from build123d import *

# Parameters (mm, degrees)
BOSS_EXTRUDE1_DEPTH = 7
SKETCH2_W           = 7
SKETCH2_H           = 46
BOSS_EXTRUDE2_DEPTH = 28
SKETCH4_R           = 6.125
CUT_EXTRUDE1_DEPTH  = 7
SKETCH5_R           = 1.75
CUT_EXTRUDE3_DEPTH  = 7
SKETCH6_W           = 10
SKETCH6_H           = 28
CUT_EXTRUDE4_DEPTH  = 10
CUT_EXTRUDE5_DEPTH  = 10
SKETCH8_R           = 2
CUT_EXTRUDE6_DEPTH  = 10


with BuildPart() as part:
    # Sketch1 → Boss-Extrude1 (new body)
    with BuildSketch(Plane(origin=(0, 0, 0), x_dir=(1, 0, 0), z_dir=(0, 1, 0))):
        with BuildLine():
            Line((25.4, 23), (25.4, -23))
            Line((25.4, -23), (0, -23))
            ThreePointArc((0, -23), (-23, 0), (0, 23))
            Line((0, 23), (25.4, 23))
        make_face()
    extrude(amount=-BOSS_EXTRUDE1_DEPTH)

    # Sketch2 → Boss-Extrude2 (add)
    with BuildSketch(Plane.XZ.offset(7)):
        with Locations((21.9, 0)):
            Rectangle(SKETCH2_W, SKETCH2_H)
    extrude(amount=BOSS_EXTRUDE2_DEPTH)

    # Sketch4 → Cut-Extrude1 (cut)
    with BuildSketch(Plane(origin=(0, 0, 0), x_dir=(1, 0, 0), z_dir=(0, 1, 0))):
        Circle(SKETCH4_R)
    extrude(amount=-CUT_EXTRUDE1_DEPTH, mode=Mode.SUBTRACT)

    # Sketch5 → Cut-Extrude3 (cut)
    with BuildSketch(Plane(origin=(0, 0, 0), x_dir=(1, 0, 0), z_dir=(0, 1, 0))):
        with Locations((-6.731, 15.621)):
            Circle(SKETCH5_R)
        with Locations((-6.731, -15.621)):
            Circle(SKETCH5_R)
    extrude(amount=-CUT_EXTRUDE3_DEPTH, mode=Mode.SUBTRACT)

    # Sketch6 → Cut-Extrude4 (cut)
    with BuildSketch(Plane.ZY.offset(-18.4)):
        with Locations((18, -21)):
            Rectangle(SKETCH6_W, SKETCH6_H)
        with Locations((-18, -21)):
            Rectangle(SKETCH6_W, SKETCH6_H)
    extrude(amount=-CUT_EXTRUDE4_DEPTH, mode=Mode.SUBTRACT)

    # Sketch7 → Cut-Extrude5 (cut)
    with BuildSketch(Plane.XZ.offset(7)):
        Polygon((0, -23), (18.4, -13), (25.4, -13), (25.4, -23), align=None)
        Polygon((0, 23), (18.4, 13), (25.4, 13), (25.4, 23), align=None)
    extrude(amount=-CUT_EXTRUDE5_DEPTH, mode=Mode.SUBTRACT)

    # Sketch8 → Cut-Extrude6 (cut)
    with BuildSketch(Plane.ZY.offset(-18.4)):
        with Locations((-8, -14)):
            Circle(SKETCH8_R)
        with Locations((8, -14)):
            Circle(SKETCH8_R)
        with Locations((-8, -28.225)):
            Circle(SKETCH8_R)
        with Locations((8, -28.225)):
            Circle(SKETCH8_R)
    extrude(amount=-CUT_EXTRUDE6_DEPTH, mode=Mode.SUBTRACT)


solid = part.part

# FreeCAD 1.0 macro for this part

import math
import FreeCAD as App
import Part
import Sketcher

doc = App.newDocument("Part")
params = doc.addObject("Spreadsheet::Sheet", "Params")
for row, (alias, value) in enumerate([
    ("sketch1_radius", "23 mm"),
    ("sketch1_width", "25.4 mm"),
    ("pad1_length", "7 mm"),
    ("sketch2_width", "7 mm"),
    ("sketch2_height", "46 mm"),
    ("pad2_length", "28 mm"),
    ("sketch3_diameter", "12.25 mm"),
    ("pocket1_length", "7 mm"),
    ("sketch4_diameter", "3.5 mm"),
    ("pocket2_length", "7 mm"),
    ("sketch5_width", "28 mm"),
    ("sketch5_height", "10 mm"),
    ("pocket3_length", "10 mm"),
    ("sketch6_width", "7 mm"),
    ("sketch6_height", "10 mm"),
    ("sketch6_width2", "25.4 mm"),
    ("pocket4_length", "10 mm"),
    ("sketch7_diameter", "4 mm"),
    ("pocket5_length", "10 mm"),
], start=1):
    params.set(f"A{row}", alias)
    params.set(f"B{row}", "=" + value)
    params.setAlias(f"B{row}", alias)

body = doc.addObject("PartDesign::Body", "Body")

# Sketch on XZ plane
sketch1 = body.newObject("Sketcher::SketchObject", "Sketch")
sketch1.AttachmentSupport = (doc.getObject("XZ_Plane"), [""])
sketch1.MapMode = "FlatFace"
sketch1.addGeometry(Part.LineSegment(App.Vector(25.4, 23, 0), App.Vector(25.4, -23, 0)), False)
sketch1.addGeometry(Part.LineSegment(App.Vector(25.4, -23, 0), App.Vector(0, -23, 0)), False)
sketch1.addGeometry(Part.ArcOfCircle(Part.Circle(App.Vector(0, 0, 0), App.Vector(0, 0, 1), 23), math.radians(90), math.radians(270)), False)
sketch1.addGeometry(Part.LineSegment(App.Vector(0, 23, 0), App.Vector(25.4, 23, 0)), False)
sketch1.addConstraint(Sketcher.Constraint("Coincident", 0, 2, 1, 1))
sketch1.addConstraint(Sketcher.Constraint("Tangent", 1, 2, 2, 2))
sketch1.addConstraint(Sketcher.Constraint("Tangent", 2, 1, 3, 1))
sketch1.addConstraint(Sketcher.Constraint("Coincident", 3, 2, 0, 1))
sketch1.addConstraint(Sketcher.Constraint("Vertical", 0))
sketch1.addConstraint(Sketcher.Constraint("Horizontal", 1))
sketch1.addConstraint(Sketcher.Constraint("Horizontal", 3))
sketch1.addConstraint(Sketcher.Constraint("Coincident", 2, 3, -1, 1))
sketch1.addConstraint(Sketcher.Constraint("Radius", 2, 23.0))
sketch1.addConstraint(Sketcher.Constraint("DistanceX", 1, 2, 1, 1, 25.4))
sketch1.setExpression("Constraints[8]", "Params.sketch1_radius")
sketch1.setExpression("Constraints[9]", "Params.sketch1_width")
pad1 = body.newObject("PartDesign::Pad", "Pad")
pad1.Profile = sketch1
pad1.setExpression("Length", "Params.pad1_length")

# Sketch on XZ plane
sketch2 = body.newObject("Sketcher::SketchObject", "Sketch001")
sketch2.AttachmentSupport = (doc.getObject("XZ_Plane"), [""])
sketch2.MapMode = "FlatFace"
sketch2.AttachmentOffset = App.Placement(App.Vector(0, 0, 7), App.Rotation())
sketch2.addGeometry(Part.LineSegment(App.Vector(18.4, 23, 0), App.Vector(18.4, -23, 0)), False)
sketch2.addGeometry(Part.LineSegment(App.Vector(18.4, -23, 0), App.Vector(25.4, -23, 0)), False)
sketch2.addGeometry(Part.LineSegment(App.Vector(25.4, -23, 0), App.Vector(25.4, 23, 0)), False)
sketch2.addGeometry(Part.LineSegment(App.Vector(25.4, 23, 0), App.Vector(18.4, 23, 0)), False)
sketch2.addConstraint(Sketcher.Constraint("Coincident", 0, 2, 1, 1))
sketch2.addConstraint(Sketcher.Constraint("Coincident", 1, 2, 2, 1))
sketch2.addConstraint(Sketcher.Constraint("Coincident", 2, 2, 3, 1))
sketch2.addConstraint(Sketcher.Constraint("Coincident", 3, 2, 0, 1))
sketch2.addConstraint(Sketcher.Constraint("Vertical", 0))
sketch2.addConstraint(Sketcher.Constraint("Horizontal", 1))
sketch2.addConstraint(Sketcher.Constraint("Vertical", 2))
sketch2.addConstraint(Sketcher.Constraint("Horizontal", 3))
sketch2.addConstraint(Sketcher.Constraint("DistanceX", 1, 1, 1, 2, 7.0))
sketch2.addConstraint(Sketcher.Constraint("DistanceY", 0, 2, 0, 1, 46.0))
sketch2.addConstraint(Sketcher.Constraint("DistanceY", 0, 2, -1, 1, 23.0))
sketch2.addConstraint(Sketcher.Constraint("DistanceX", -1, 1, 0, 2, 18.4))
sketch2.setExpression("Constraints[8]", "Params.sketch2_width")
sketch2.setExpression("Constraints[9]", "Params.sketch2_height")
pad2 = body.newObject("PartDesign::Pad", "Pad001")
pad2.Profile = sketch2
pad2.setExpression("Length", "Params.pad2_length")

# Sketch on XZ plane
sketch3 = body.newObject("Sketcher::SketchObject", "Sketch002")
sketch3.AttachmentSupport = (doc.getObject("XZ_Plane"), [""])
sketch3.MapMode = "FlatFace"
sketch3.addGeometry(Part.Circle(App.Vector(0, 0, 0), App.Vector(0, 0, 1), 6.125), False)
sketch3.addConstraint(Sketcher.Constraint("Coincident", 0, 3, -1, 1))
sketch3.addConstraint(Sketcher.Constraint("Diameter", 0, 12.25))
sketch3.setExpression("Constraints[1]", "Params.sketch3_diameter")
pocket1 = body.newObject("PartDesign::Pocket", "Pocket")
pocket1.Profile = sketch3
pocket1.setExpression("Length", "Params.pocket1_length")
pocket1.Reversed = True

# Sketch on XZ plane
sketch4 = body.newObject("Sketcher::SketchObject", "Sketch003")
sketch4.AttachmentSupport = (doc.getObject("XZ_Plane"), [""])
sketch4.MapMode = "FlatFace"
sketch4.addGeometry(Part.Circle(App.Vector(-6.731, -15.621, 0), App.Vector(0, 0, 1), 1.75), False)
sketch4.addGeometry(Part.Circle(App.Vector(-6.731, 15.621, 0), App.Vector(0, 0, 1), 1.75), False)
sketch4.addConstraint(Sketcher.Constraint("Equal", 0, 1))
sketch4.addConstraint(Sketcher.Constraint("Symmetric", 0, 3, 1, 3, -1))
sketch4.addConstraint(Sketcher.Constraint("Diameter", 0, 3.5))
sketch4.addConstraint(Sketcher.Constraint("DistanceX", 0, 3, -1, 1, 6.731))
sketch4.addConstraint(Sketcher.Constraint("DistanceY", 0, 3, -1, 1, 15.621))
sketch4.setExpression("Constraints[2]", "Params.sketch4_diameter")
pocket2 = body.newObject("PartDesign::Pocket", "Pocket001")
pocket2.Profile = sketch4
pocket2.setExpression("Length", "Params.pocket2_length")
pocket2.Reversed = True

# Sketch on YZ plane
sketch5 = body.newObject("Sketcher::SketchObject", "Sketch004")
sketch5.AttachmentSupport = (doc.getObject("YZ_Plane"), [""])
sketch5.MapMode = "FlatFace"
sketch5.AttachmentOffset = App.Placement(App.Vector(0, 0, 18.4), App.Rotation())
sketch5.addGeometry(Part.LineSegment(App.Vector(-7, 13, 0), App.Vector(-35, 13, 0)), False)
sketch5.addGeometry(Part.LineSegment(App.Vector(-35, 13, 0), App.Vector(-35, 23, 0)), False)
sketch5.addGeometry(Part.LineSegment(App.Vector(-35, 23, 0), App.Vector(-7, 23, 0)), False)
sketch5.addGeometry(Part.LineSegment(App.Vector(-7, 23, 0), App.Vector(-7, 13, 0)), False)
sketch5.addGeometry(Part.LineSegment(App.Vector(-7, -23, 0), App.Vector(-35, -23, 0)), False)
sketch5.addGeometry(Part.LineSegment(App.Vector(-35, -23, 0), App.Vector(-35, -13, 0)), False)
sketch5.addGeometry(Part.LineSegment(App.Vector(-35, -13, 0), App.Vector(-7, -13, 0)), False)
sketch5.addGeometry(Part.LineSegment(App.Vector(-7, -13, 0), App.Vector(-7, -23, 0)), False)
sketch5.addConstraint(Sketcher.Constraint("Coincident", 0, 2, 1, 1))
sketch5.addConstraint(Sketcher.Constraint("Coincident", 1, 2, 2, 1))
sketch5.addConstraint(Sketcher.Constraint("Coincident", 2, 2, 3, 1))
sketch5.addConstraint(Sketcher.Constraint("Coincident", 3, 2, 0, 1))
sketch5.addConstraint(Sketcher.Constraint("Coincident", 4, 2, 5, 1))
sketch5.addConstraint(Sketcher.Constraint("Coincident", 5, 2, 6, 1))
sketch5.addConstraint(Sketcher.Constraint("Coincident", 6, 2, 7, 1))
sketch5.addConstraint(Sketcher.Constraint("Coincident", 7, 2, 4, 1))
sketch5.addConstraint(Sketcher.Constraint("Horizontal", 0))
sketch5.addConstraint(Sketcher.Constraint("Vertical", 1))
sketch5.addConstraint(Sketcher.Constraint("Horizontal", 2))
sketch5.addConstraint(Sketcher.Constraint("Vertical", 3))
sketch5.addConstraint(Sketcher.Constraint("Horizontal", 4))
sketch5.addConstraint(Sketcher.Constraint("Vertical", 5))
sketch5.addConstraint(Sketcher.Constraint("Horizontal", 6))
sketch5.addConstraint(Sketcher.Constraint("Vertical", 7))
sketch5.addConstraint(Sketcher.Constraint("Symmetric", 1, 2, 4, 2, -1))
sketch5.addConstraint(Sketcher.Constraint("Symmetric", 3, 2, 6, 2, -1))
sketch5.addConstraint(Sketcher.Constraint("DistanceX", 0, 2, 0, 1, 28.0))
sketch5.addConstraint(Sketcher.Constraint("DistanceY", 1, 1, 1, 2, 10.0))
sketch5.addConstraint(Sketcher.Constraint("DistanceX", 0, 2, -1, 1, 35.0))
sketch5.addConstraint(Sketcher.Constraint("DistanceY", -1, 1, 0, 2, 13.0))
sketch5.setExpression("Constraints[18]", "Params.sketch5_width")
sketch5.setExpression("Constraints[19]", "Params.sketch5_height")
pocket3 = body.newObject("PartDesign::Pocket", "Pocket002")
pocket3.Profile = sketch5
pocket3.setExpression("Length", "Params.pocket3_length")
pocket3.Reversed = True

# Sketch on XZ plane
sketch6 = body.newObject("Sketcher::SketchObject", "Sketch005")
sketch6.AttachmentSupport = (doc.getObject("XZ_Plane"), [""])
sketch6.MapMode = "FlatFace"
sketch6.AttachmentOffset = App.Placement(App.Vector(0, 0, 7), App.Rotation())
sketch6.addGeometry(Part.LineSegment(App.Vector(18.4, -13, 0), App.Vector(0, -23, 0)), False)
sketch6.addGeometry(Part.LineSegment(App.Vector(0, -23, 0), App.Vector(25.4, -23, 0)), False)
sketch6.addGeometry(Part.LineSegment(App.Vector(25.4, -23, 0), App.Vector(25.4, -13, 0)), False)
sketch6.addGeometry(Part.LineSegment(App.Vector(25.4, -13, 0), App.Vector(18.4, -13, 0)), False)
sketch6.addGeometry(Part.LineSegment(App.Vector(0, 23, 0), App.Vector(18.4, 13, 0)), False)
sketch6.addGeometry(Part.LineSegment(App.Vector(18.4, 13, 0), App.Vector(25.4, 13, 0)), False)
sketch6.addGeometry(Part.LineSegment(App.Vector(25.4, 13, 0), App.Vector(25.4, 23, 0)), False)
sketch6.addGeometry(Part.LineSegment(App.Vector(25.4, 23, 0), App.Vector(0, 23, 0)), False)
sketch6.addConstraint(Sketcher.Constraint("Coincident", 0, 2, 1, 1))
sketch6.addConstraint(Sketcher.Constraint("Coincident", 1, 2, 2, 1))
sketch6.addConstraint(Sketcher.Constraint("Coincident", 2, 2, 3, 1))
sketch6.addConstraint(Sketcher.Constraint("Coincident", 3, 2, 0, 1))
sketch6.addConstraint(Sketcher.Constraint("Coincident", 4, 2, 5, 1))
sketch6.addConstraint(Sketcher.Constraint("Coincident", 5, 2, 6, 1))
sketch6.addConstraint(Sketcher.Constraint("Coincident", 6, 2, 7, 1))
sketch6.addConstraint(Sketcher.Constraint("Coincident", 7, 2, 4, 1))
sketch6.addConstraint(Sketcher.Constraint("Horizontal", 1))
sketch6.addConstraint(Sketcher.Constraint("Vertical", 2))
sketch6.addConstraint(Sketcher.Constraint("Horizontal", 3))
sketch6.addConstraint(Sketcher.Constraint("Horizontal", 5))
sketch6.addConstraint(Sketcher.Constraint("Vertical", 6))
sketch6.addConstraint(Sketcher.Constraint("Horizontal", 7))
sketch6.addConstraint(Sketcher.Constraint("Symmetric", 0, 2, 7, 2, -1, 1))
sketch6.addConstraint(Sketcher.Constraint("Symmetric", 3, 2, 4, 2, -1))
sketch6.addConstraint(Sketcher.Constraint("PointOnObject", 0, 2, -2))
sketch6.addConstraint(Sketcher.Constraint("Vertical", 2, 2, 5, 2))
sketch6.addConstraint(Sketcher.Constraint("DistanceX", 3, 2, 3, 1, 7.0))
sketch6.addConstraint(Sketcher.Constraint("DistanceY", 2, 1, 2, 2, 10.0))
sketch6.addConstraint(Sketcher.Constraint("DistanceX", 1, 1, 1, 2, 25.4))
sketch6.addConstraint(Sketcher.Constraint("DistanceY", 0, 2, -1, 1, 23.0))
sketch6.setExpression("Constraints[18]", "Params.sketch6_width")
sketch6.setExpression("Constraints[19]", "Params.sketch6_height")
sketch6.setExpression("Constraints[20]", "Params.sketch6_width2")
pocket4 = body.newObject("PartDesign::Pocket", "Pocket003")
pocket4.Profile = sketch6
pocket4.setExpression("Length", "Params.pocket4_length")

# Sketch on YZ plane
sketch7 = body.newObject("Sketcher::SketchObject", "Sketch006")
sketch7.AttachmentSupport = (doc.getObject("YZ_Plane"), [""])
sketch7.MapMode = "FlatFace"
sketch7.AttachmentOffset = App.Placement(App.Vector(0, 0, 18.4), App.Rotation())
sketch7.addGeometry(Part.Circle(App.Vector(-14, -8, 0), App.Vector(0, 0, 1), 2), False)
sketch7.addGeometry(Part.Circle(App.Vector(-14, 8, 0), App.Vector(0, 0, 1), 2), False)
sketch7.addGeometry(Part.Circle(App.Vector(-28.225, -8, 0), App.Vector(0, 0, 1), 2), False)
sketch7.addGeometry(Part.Circle(App.Vector(-28.225, 8, 0), App.Vector(0, 0, 1), 2), False)
sketch7.addConstraint(Sketcher.Constraint("Equal", 0, 1))
sketch7.addConstraint(Sketcher.Constraint("Equal", 1, 2))
sketch7.addConstraint(Sketcher.Constraint("Equal", 2, 3))
sketch7.addConstraint(Sketcher.Constraint("Symmetric", 0, 3, 1, 3, -1))
sketch7.addConstraint(Sketcher.Constraint("Symmetric", 2, 3, 3, 3, -1))
sketch7.addConstraint(Sketcher.Constraint("Horizontal", 0, 3, 2, 3))
sketch7.addConstraint(Sketcher.Constraint("Diameter", 0, 4.0))
sketch7.addConstraint(Sketcher.Constraint("DistanceX", 0, 3, -1, 1, 14.0))
sketch7.addConstraint(Sketcher.Constraint("DistanceY", 0, 3, -1, 1, 8.0))
sketch7.addConstraint(Sketcher.Constraint("DistanceX", 2, 3, -1, 1, 28.225))
sketch7.setExpression("Constraints[6]", "Params.sketch7_diameter")
pocket5 = body.newObject("PartDesign::Pocket", "Pocket004")
pocket5.Profile = sketch7
pocket5.setExpression("Length", "Params.pocket5_length")
pocket5.Reversed = True

doc.recompute()
